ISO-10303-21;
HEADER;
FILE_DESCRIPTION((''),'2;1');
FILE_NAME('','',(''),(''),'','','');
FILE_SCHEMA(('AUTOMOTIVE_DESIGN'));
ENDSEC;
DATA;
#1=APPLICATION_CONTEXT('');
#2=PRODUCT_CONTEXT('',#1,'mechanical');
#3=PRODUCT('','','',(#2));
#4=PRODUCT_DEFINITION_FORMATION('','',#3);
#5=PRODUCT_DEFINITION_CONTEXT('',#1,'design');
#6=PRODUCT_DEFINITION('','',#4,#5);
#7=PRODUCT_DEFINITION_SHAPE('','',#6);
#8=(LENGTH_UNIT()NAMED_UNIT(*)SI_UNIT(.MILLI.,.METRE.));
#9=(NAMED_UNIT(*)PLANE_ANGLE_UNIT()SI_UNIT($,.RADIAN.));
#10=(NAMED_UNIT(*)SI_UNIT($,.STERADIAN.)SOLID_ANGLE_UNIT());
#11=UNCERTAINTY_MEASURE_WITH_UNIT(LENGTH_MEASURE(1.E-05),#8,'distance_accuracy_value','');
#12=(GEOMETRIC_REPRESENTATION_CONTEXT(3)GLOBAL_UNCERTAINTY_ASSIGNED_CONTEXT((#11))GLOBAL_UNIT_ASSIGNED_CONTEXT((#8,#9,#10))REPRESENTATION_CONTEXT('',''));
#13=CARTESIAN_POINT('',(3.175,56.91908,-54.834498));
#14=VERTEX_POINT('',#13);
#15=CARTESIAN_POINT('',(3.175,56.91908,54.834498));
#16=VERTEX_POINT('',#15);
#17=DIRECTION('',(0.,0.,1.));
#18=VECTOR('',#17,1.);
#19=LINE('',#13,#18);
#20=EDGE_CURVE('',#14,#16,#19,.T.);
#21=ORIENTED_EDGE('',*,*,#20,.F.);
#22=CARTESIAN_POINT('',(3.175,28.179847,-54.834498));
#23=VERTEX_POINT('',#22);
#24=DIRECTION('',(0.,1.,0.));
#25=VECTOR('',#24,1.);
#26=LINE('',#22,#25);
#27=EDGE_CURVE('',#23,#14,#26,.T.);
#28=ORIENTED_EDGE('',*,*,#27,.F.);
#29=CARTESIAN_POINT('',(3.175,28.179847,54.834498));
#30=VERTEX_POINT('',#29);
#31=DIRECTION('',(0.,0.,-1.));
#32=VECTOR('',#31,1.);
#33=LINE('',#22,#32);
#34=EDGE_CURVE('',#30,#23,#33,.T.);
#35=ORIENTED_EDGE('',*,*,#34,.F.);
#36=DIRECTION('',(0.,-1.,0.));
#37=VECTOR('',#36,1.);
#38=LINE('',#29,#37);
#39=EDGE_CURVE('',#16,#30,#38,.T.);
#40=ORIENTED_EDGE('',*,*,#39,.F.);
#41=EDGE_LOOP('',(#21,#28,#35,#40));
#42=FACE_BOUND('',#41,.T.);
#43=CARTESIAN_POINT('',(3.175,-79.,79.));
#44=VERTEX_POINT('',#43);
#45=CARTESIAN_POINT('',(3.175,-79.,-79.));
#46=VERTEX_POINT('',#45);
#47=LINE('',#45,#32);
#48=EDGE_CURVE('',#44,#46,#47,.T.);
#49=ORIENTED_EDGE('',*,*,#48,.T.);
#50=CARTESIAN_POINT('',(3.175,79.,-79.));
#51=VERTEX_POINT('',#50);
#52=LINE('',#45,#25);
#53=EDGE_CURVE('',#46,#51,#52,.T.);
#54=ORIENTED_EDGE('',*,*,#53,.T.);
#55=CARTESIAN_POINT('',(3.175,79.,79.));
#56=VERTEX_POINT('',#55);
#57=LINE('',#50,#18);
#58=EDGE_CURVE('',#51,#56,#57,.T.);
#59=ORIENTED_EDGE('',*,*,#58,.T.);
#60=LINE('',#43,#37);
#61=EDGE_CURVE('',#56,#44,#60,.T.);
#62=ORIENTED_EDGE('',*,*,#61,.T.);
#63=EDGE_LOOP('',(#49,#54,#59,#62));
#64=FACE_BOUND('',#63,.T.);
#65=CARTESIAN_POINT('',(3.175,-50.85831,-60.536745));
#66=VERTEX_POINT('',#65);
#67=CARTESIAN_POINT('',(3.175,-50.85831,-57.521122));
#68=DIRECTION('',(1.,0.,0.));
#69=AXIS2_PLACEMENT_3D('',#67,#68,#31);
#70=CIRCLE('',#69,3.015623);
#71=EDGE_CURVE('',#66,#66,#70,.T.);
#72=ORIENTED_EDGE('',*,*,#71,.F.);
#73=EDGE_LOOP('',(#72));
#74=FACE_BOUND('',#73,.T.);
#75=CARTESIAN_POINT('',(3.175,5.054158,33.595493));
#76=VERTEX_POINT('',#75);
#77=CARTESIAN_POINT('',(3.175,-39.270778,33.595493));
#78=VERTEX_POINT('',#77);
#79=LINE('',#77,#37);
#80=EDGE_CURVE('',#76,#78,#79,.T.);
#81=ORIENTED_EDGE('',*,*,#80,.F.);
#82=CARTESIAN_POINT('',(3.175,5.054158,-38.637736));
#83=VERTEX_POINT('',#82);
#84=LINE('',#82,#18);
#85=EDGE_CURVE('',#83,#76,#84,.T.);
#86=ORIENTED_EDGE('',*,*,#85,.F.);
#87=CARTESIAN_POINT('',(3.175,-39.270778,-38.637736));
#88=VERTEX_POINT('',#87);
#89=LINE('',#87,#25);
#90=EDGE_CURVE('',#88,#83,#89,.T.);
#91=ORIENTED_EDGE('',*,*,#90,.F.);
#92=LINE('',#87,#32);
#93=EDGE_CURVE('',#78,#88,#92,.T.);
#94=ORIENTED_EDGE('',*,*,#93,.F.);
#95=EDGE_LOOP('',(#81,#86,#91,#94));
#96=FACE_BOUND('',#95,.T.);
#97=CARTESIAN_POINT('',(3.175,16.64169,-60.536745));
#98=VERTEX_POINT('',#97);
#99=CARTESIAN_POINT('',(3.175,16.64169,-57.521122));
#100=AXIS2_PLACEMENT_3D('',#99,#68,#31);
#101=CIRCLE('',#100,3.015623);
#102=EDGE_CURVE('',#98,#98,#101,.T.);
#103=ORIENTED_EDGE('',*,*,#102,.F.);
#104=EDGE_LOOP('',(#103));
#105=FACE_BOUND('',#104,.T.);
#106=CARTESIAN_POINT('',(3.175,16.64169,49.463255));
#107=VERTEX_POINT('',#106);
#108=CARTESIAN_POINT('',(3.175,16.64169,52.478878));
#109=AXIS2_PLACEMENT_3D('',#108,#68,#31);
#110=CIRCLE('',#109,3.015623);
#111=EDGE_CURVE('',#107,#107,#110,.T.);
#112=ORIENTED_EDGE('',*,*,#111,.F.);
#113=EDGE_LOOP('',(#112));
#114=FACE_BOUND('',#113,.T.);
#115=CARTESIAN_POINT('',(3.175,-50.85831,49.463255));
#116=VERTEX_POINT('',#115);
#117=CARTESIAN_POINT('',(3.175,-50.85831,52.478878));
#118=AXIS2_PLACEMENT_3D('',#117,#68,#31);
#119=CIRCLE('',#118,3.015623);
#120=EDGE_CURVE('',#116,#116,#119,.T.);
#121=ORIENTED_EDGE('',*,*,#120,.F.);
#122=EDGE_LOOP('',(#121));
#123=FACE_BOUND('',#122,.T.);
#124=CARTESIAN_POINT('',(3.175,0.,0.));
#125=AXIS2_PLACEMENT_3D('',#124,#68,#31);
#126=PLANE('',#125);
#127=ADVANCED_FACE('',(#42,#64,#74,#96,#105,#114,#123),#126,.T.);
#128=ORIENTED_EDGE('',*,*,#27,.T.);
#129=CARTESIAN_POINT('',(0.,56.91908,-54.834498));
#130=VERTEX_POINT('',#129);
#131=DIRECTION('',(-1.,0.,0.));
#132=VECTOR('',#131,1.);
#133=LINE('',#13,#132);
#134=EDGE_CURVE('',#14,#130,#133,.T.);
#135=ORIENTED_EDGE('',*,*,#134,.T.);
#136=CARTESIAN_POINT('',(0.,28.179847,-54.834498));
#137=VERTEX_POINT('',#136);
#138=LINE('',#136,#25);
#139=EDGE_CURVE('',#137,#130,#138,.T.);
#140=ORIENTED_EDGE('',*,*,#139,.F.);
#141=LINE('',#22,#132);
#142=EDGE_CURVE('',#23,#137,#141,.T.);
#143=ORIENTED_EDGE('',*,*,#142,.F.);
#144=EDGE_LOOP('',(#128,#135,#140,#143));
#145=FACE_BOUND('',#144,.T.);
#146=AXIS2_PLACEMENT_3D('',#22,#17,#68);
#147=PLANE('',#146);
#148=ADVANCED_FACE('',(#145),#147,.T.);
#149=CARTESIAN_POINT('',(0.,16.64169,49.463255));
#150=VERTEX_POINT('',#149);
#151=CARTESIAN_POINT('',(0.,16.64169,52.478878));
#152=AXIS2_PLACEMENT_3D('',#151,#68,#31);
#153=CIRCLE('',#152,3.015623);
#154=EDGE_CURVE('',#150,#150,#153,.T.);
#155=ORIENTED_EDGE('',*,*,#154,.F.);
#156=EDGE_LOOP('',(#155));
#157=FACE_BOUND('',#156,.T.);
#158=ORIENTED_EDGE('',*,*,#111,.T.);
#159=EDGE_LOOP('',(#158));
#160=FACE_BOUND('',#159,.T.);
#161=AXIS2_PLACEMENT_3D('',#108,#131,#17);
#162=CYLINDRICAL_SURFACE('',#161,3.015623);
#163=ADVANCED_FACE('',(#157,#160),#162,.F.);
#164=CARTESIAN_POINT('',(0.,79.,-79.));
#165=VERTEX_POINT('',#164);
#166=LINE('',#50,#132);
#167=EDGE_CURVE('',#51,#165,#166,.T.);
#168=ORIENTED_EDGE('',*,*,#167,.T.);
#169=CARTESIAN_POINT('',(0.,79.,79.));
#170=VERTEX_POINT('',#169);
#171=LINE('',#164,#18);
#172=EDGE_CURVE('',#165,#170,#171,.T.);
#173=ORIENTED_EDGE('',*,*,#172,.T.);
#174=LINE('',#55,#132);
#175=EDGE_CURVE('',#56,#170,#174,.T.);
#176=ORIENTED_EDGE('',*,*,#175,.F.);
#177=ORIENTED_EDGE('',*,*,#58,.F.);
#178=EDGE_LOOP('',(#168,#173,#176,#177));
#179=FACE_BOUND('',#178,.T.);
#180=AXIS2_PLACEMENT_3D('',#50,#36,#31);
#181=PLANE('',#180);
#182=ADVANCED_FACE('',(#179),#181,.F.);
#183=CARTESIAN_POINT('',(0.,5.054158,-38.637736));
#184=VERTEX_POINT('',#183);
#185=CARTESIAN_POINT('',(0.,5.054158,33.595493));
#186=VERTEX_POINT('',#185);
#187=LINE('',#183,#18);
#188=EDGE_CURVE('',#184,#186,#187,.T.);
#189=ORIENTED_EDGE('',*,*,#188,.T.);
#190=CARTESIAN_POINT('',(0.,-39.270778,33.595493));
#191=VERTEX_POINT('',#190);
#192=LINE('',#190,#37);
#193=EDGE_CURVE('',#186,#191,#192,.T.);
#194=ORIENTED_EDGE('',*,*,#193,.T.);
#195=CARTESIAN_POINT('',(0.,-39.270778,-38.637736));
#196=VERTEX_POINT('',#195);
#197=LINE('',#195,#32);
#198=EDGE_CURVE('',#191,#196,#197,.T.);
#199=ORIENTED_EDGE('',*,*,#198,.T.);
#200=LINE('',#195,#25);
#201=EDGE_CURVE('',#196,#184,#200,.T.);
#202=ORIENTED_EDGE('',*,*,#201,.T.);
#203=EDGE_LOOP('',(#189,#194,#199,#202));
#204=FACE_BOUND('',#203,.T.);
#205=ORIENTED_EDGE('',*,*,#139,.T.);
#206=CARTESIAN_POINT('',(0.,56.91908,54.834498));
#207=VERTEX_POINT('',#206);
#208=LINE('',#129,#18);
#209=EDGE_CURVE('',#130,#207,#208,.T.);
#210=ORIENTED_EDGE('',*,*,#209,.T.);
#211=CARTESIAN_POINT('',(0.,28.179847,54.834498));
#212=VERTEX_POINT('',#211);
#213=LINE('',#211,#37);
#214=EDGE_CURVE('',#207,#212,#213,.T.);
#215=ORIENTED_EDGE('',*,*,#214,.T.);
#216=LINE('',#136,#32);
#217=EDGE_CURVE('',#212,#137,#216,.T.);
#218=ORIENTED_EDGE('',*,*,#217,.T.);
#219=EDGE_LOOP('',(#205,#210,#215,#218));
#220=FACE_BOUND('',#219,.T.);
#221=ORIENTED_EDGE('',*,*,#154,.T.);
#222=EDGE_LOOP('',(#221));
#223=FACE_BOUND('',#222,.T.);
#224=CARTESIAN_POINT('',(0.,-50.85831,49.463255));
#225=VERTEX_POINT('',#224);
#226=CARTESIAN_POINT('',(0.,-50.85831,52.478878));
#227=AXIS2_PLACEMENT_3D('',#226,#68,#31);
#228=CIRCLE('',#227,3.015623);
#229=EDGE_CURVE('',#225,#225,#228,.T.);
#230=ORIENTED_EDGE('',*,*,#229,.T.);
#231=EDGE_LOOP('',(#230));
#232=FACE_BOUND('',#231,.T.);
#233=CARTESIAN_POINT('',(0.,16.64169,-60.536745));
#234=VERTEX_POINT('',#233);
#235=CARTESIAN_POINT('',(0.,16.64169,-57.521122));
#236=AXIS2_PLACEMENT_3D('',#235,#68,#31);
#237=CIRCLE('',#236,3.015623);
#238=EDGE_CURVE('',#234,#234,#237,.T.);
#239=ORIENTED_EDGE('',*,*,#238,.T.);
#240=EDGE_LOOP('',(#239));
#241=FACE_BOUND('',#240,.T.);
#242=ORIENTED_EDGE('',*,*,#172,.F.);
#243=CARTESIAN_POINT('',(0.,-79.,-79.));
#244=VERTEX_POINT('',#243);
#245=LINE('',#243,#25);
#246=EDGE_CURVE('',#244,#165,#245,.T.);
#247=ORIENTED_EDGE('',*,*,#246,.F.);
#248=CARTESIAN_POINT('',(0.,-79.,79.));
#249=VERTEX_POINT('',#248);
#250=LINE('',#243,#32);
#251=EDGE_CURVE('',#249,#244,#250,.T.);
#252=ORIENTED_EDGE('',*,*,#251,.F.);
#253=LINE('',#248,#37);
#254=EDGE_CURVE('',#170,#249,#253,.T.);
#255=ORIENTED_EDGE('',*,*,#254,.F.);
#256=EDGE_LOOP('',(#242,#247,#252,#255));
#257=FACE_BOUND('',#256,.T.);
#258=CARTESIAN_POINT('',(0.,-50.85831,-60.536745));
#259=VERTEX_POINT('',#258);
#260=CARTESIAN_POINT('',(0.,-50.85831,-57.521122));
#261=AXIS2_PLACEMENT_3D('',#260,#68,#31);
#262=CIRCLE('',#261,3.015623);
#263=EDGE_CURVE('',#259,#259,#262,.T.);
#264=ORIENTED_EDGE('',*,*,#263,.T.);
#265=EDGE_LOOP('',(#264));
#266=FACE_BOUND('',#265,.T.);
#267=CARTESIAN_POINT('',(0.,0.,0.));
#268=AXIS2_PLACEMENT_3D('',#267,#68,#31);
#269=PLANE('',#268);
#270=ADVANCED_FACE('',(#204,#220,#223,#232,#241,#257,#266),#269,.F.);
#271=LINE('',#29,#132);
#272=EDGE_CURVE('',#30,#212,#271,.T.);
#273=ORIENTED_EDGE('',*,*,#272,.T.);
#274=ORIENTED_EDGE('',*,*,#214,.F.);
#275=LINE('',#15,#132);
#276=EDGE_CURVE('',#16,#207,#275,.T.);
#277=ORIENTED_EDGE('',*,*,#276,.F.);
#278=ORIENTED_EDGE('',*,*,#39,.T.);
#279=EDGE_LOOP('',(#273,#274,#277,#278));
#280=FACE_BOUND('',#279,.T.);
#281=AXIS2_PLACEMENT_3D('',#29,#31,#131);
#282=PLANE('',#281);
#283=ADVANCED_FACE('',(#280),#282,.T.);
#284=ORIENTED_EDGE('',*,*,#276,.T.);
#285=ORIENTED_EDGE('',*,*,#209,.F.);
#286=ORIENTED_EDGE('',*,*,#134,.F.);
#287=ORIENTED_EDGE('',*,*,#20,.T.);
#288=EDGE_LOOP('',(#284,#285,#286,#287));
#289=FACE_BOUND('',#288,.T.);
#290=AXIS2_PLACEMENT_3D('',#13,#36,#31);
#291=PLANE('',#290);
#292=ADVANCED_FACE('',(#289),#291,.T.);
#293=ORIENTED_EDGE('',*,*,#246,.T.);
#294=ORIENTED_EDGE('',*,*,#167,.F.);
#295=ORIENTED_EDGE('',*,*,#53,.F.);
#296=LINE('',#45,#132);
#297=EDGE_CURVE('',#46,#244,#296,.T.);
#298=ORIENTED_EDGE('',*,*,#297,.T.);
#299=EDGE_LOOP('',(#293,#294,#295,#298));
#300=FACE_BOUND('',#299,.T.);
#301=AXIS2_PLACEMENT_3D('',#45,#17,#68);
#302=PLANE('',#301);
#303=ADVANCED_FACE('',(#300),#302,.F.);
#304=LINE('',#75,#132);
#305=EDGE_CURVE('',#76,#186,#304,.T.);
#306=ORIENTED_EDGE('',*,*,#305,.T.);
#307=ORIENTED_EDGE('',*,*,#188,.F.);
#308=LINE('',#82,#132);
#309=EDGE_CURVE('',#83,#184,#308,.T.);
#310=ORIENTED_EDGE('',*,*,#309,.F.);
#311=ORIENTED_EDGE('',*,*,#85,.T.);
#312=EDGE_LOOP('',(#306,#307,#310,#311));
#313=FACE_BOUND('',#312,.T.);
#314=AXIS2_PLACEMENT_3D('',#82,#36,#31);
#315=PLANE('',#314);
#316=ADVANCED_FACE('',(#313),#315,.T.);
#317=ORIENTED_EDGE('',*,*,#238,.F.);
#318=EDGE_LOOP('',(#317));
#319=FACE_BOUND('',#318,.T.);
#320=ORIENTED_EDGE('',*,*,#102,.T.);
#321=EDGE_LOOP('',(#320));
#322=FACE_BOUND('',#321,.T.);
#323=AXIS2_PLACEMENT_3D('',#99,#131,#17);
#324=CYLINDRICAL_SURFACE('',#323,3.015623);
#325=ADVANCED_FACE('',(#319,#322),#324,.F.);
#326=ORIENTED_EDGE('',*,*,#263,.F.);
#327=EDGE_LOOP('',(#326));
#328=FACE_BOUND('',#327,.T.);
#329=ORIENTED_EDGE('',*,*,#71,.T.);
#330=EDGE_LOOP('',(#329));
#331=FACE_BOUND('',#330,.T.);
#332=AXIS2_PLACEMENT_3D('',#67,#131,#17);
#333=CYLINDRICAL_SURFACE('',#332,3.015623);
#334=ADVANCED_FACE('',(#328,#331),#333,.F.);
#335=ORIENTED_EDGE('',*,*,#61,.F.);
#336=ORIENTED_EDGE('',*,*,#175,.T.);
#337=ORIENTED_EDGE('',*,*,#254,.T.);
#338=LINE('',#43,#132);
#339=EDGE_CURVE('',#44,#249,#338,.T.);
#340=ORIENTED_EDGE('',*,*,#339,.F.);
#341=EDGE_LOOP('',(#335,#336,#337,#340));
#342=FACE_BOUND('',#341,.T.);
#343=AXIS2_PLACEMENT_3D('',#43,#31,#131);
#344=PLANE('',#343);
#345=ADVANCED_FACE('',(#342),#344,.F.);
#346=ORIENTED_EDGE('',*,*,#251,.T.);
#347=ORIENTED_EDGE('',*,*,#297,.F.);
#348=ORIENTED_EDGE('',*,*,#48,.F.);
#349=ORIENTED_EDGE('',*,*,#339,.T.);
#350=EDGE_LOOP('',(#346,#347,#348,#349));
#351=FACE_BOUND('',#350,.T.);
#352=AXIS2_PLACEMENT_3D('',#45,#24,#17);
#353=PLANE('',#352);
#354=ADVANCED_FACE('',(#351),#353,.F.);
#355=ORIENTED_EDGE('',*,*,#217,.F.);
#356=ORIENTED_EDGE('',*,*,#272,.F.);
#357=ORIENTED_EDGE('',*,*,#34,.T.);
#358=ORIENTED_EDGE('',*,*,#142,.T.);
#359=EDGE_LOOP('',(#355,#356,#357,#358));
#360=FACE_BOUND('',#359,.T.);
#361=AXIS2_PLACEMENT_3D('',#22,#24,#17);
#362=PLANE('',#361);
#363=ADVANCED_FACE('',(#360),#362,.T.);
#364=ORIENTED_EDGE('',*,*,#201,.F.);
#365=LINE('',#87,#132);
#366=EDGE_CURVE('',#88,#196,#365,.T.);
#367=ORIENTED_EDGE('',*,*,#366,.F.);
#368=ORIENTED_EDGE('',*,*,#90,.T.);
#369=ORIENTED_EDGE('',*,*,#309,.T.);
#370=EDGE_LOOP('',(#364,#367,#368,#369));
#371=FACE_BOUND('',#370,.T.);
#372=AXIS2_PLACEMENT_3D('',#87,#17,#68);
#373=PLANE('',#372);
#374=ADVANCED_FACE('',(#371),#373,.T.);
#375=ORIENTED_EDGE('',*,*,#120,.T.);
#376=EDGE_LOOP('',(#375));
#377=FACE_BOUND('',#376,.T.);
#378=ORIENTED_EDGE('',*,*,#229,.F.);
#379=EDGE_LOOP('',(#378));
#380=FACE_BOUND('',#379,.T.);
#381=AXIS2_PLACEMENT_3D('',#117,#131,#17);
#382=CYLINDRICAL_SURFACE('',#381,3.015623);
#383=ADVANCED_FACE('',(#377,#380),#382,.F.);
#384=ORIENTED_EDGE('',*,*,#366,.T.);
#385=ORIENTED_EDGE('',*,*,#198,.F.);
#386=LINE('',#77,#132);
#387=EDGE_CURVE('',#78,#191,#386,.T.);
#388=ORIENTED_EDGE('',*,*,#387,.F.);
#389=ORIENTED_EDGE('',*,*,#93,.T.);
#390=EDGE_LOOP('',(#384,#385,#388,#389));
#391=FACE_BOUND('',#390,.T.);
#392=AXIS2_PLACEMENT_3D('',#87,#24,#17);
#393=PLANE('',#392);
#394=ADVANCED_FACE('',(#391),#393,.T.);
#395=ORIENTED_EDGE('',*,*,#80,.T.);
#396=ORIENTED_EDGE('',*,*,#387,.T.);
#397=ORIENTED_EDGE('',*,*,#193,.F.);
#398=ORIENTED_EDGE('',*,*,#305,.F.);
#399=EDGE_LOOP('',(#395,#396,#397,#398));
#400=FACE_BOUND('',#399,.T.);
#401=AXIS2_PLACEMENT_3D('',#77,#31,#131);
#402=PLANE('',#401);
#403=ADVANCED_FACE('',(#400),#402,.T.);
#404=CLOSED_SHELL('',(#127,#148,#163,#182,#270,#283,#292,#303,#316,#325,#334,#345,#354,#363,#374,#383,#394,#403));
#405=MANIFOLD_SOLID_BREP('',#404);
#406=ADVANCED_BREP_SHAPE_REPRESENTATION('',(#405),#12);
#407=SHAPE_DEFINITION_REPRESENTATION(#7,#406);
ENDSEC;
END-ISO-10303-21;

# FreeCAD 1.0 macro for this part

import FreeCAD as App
import Part
import Sketcher
from FreeCAD import Vector

doc = App.newDocument("Part")
body = doc.addObject("PartDesign::Body", "Body")

# Sketch on YZ plane
sketch1 = body.newObject("Sketcher::SketchObject", "Sketch")
sketch1.AttachmentSupport = (doc.getObject("YZ_Plane"), [""])
sketch1.MapMode = "FlatFace"
sketch1.addGeometry([
    Part.LineSegment(Vector(79, 79, 0), Vector(-79, 79, 0)),  # 0
    Part.LineSegment(Vector(-79, 79, 0), Vector(-79, -79, 0)),  # 1
    Part.LineSegment(Vector(-79, -79, 0), Vector(79, -79, 0)),  # 2
    Part.LineSegment(Vector(79, -79, 0), Vector(79, 79, 0)),  # 3
    Part.Circle(Vector(-50.9, 52.5, 0), Vector(0, 0, 1), 3),  # 4
    Part.Circle(Vector(-50.9, -57.5, 0), Vector(0, 0, 1), 3),  # 5
    Part.LineSegment(Vector(-39.3, -38.6, 0), Vector(-39.3, 33.6, 0)),  # 6
    Part.LineSegment(Vector(-39.3, 33.6, 0), Vector(5.1, 33.6, 0)),  # 7
    Part.LineSegment(Vector(5.1, 33.6, 0), Vector(5.1, -38.6, 0)),  # 8
    Part.LineSegment(Vector(5.1, -38.6, 0), Vector(-39.3, -38.6, 0)),  # 9
    Part.Circle(Vector(16.6, 52.5, 0), Vector(0, 0, 1), 3),  # 10
    Part.LineSegment(Vector(28.2, -54.8, 0), Vector(28.2, 54.8, 0)),  # 11
    Part.LineSegment(Vector(28.2, 54.8, 0), Vector(56.9, 54.8, 0)),  # 12
    Part.LineSegment(Vector(56.9, 54.8, 0), Vector(56.9, -54.8, 0)),  # 13
    Part.LineSegment(Vector(56.9, -54.8, 0), Vector(28.2, -54.8, 0)),  # 14
    Part.Circle(Vector(16.6, -57.5, 0), Vector(0, 0, 1), 3),  # 15
], False)
sketch1.addConstraint([
    Sketcher.Constraint("Coincident", 0, 2, 1, 1),
    Sketcher.Constraint("Coincident", 1, 2, 2, 1),
    Sketcher.Constraint("Coincident", 2, 2, 3, 1),
    Sketcher.Constraint("Coincident", 3, 2, 0, 1),
    Sketcher.Constraint("Coincident", 6, 2, 7, 1),
    Sketcher.Constraint("Coincident", 7, 2, 8, 1),
    Sketcher.Constraint("Coincident", 8, 2, 9, 1),
    Sketcher.Constraint("Coincident", 9, 2, 6, 1),
    Sketcher.Constraint("Coincident", 11, 2, 12, 1),
    Sketcher.Constraint("Coincident", 12, 2, 13, 1),
    Sketcher.Constraint("Coincident", 13, 2, 14, 1),
    Sketcher.Constraint("Coincident", 14, 2, 11, 1),
    Sketcher.Constraint("Horizontal", 0),
    Sketcher.Constraint("Vertical", 1),
    Sketcher.Constraint("Horizontal", 2),
    Sketcher.Constraint("Vertical", 3),
    Sketcher.Constraint("Vertical", 6),
    Sketcher.Constraint("Horizontal", 7),
    Sketcher.Constraint("Vertical", 8),
    Sketcher.Constraint("Horizontal", 9),
    Sketcher.Constraint("Vertical", 11),
    Sketcher.Constraint("Horizontal", 12),
    Sketcher.Constraint("Vertical", 13),
    Sketcher.Constraint("Horizontal", 14),
    Sketcher.Constraint("Equal", 4, 5),
    Sketcher.Constraint("Equal", 5, 10),
    Sketcher.Constraint("Equal", 10, 15),
    Sketcher.Constraint("Symmetric", 0, 2, 2, 2, -1, 1),
    Sketcher.Constraint("Horizontal", 4, 3, 10, 3),
    Sketcher.Constraint("Horizontal", 5, 3, 15, 3),
    Sketcher.Constraint("Vertical", 4, 3, 5, 3),
    Sketcher.Constraint("Vertical", 10, 3, 15, 3),
    Sketcher.Constraint("Equal", 2, 1),
    Sketcher.Constraint("DistanceX", 0, 2, 0, 1, 158.0),
    Sketcher.Constraint("DistanceY", 5, 3, 4, 3, 110.0),
    Sketcher.Constraint("DistanceX", 4, 3, 10, 3, 67.5),
    Sketcher.Constraint("Diameter", 4, 6.031247),
    Sketcher.Constraint("DistanceY", 6, 1, 6, 2, 72.233229),
    Sketcher.Constraint("DistanceY", -1, 1, 11, 2, 54.834498),
    Sketcher.Constraint("DistanceY", 13, 2, -1, 1, 54.834498),
    Sketcher.Constraint("DistanceX", 7, 1, 7, 2, 44.324936),
    Sketcher.Constraint("DistanceX", 12, 1, 12, 2, 28.739233),
    Sketcher.Constraint("DistanceX", 4, 3, -1, 1, 50.85831),
    Sketcher.Constraint("DistanceY", -1, 1, 4, 3, 52.478878),
    Sketcher.Constraint("DistanceX", -1, 1, 7, 2, 5.054158),
    Sketcher.Constraint("DistanceX", -1, 1, 12, 2, 56.91908),
    Sketcher.Constraint("DistanceY", 13, 2, 7, 2, 88.429991),
])
pad1 = body.newObject("PartDesign::Pad", "Pad")
pad1.Profile = sketch1
pad1.Length = 3.175

doc.recompute()
